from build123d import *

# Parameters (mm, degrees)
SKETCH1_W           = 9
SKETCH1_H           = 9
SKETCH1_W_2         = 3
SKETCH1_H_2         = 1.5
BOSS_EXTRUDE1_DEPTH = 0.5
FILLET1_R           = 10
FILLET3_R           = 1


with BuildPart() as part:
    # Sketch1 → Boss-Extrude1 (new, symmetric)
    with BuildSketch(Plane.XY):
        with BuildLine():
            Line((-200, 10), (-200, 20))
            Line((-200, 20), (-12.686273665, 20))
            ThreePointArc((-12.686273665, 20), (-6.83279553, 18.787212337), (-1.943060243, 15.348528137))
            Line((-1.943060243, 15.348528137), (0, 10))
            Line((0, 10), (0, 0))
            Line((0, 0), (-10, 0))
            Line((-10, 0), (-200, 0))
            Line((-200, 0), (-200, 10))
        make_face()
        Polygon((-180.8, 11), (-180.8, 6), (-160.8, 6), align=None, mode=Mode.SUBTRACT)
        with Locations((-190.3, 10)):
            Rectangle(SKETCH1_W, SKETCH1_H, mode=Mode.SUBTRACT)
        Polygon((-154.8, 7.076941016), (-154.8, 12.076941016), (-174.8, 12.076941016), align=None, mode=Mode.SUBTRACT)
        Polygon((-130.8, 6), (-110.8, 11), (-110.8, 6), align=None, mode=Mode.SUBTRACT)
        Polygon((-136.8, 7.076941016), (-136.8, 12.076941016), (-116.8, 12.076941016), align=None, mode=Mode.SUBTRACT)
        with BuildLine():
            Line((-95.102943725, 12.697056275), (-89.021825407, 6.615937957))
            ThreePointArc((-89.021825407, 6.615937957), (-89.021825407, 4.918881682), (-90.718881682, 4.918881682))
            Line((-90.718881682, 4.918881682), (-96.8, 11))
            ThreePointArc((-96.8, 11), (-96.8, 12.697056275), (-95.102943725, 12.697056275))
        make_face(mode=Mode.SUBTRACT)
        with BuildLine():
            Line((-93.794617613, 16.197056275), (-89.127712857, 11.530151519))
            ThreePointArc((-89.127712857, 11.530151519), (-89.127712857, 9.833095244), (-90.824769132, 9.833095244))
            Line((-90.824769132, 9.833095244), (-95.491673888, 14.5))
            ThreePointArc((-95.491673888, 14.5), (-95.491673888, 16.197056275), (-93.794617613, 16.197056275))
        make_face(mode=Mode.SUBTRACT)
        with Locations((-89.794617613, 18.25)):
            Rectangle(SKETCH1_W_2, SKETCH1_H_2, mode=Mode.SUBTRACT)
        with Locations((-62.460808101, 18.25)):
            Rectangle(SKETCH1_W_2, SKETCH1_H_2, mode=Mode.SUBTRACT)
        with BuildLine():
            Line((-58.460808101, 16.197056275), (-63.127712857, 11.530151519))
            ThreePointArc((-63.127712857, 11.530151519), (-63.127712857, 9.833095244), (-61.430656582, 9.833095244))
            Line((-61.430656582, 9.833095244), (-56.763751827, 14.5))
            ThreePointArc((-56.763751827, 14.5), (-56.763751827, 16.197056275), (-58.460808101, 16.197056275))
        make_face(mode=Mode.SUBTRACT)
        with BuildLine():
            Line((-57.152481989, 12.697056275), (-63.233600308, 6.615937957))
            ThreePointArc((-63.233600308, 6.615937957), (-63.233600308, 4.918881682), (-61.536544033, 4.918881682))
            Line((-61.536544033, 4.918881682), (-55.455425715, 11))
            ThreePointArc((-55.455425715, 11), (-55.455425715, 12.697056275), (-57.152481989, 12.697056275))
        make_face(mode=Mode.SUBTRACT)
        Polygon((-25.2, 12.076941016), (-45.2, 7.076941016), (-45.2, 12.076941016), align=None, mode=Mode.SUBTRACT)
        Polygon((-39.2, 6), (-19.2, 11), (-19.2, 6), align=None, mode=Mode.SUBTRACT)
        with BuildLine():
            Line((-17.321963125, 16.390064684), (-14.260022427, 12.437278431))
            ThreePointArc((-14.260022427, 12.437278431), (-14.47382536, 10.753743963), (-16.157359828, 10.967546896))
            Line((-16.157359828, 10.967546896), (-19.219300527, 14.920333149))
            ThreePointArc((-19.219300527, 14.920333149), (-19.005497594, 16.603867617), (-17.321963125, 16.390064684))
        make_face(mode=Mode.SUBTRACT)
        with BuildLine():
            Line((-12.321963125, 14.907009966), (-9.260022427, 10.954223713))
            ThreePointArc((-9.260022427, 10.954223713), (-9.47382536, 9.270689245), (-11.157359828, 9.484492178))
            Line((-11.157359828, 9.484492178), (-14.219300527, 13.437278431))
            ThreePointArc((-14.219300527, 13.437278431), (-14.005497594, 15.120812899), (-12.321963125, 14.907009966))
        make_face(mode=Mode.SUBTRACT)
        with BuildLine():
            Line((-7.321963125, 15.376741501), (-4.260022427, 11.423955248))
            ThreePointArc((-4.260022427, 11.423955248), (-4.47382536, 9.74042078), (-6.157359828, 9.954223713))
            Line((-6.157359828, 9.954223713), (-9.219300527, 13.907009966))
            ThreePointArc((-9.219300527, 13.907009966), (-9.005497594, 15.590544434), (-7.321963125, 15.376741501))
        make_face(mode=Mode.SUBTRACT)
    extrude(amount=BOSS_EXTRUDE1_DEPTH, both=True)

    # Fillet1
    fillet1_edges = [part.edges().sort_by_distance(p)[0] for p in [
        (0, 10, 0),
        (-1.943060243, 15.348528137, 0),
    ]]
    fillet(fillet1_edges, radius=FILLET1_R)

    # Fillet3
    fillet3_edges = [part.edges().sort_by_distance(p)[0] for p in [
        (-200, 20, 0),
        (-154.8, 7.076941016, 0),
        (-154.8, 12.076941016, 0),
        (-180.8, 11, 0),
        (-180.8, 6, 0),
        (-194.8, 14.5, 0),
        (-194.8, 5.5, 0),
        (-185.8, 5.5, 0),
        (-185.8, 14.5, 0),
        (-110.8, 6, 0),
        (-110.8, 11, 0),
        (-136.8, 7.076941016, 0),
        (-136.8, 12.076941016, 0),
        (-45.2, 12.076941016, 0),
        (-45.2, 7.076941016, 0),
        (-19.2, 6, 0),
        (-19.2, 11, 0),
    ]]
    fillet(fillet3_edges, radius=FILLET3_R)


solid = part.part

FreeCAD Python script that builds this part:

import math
import FreeCAD as App
import Part
import Sketcher

V = App.Vector


def edges_at(feature, points):
    """Names of the edges that pass closest to the given points."""
    edges = feature.Shape.Edges
    near = lambda p: min(range(len(edges)), key=lambda i: edges[i].distToShape(Part.Vertex(*p))[0])
    return sorted({f"Edge{near(p) + 1}" for p in points})


def add_polygon(sketch, points):
    """Adds a closed chain of lines whose ends are joined by coincident constraints."""
    first, n = sketch.GeometryCount, len(points)
    for a, b in zip(points, points[1:] + points[:1]):
        sketch.addGeometry(Part.LineSegment(App.Vector(*a, 0), App.Vector(*b, 0)), False)
    for i in range(n):
        sketch.addConstraint(Sketcher.Constraint("Coincident", first + i, 2, first + (i + 1) % n, 1))

doc = App.newDocument("Part")
params = doc.addObject("Spreadsheet::Sheet", "Params")
for row, (alias, value) in enumerate([
    ("sketch1_radius", "1.2 mm"),
    ("sketch1_width", "200 mm"),
    ("sketch1_width2", "20 mm"),
    ("sketch1_width3", "9 mm"),
    ("sketch1_width4", "3 mm"),
    ("pad1_length", "1 mm"),
    ("fillet_radius", "10 mm"),
    ("fillet2_radius", "1 mm"),
], start=1):
    params.set(f"A{row}", alias)
    params.set(f"B{row}", "=" + value)
    params.setAlias(f"B{row}", alias)

body = doc.addObject("PartDesign::Body", "Body")

sketch1 = body.newObject("Sketcher::SketchObject", "Sketch")
sketch1.AttachmentSupport = (doc.getObject("XY_Plane"), [""])
sketch1.MapMode = "FlatFace"
sketch1.addGeometry(Part.LineSegment(V(-12.686274, 20, 0), V(-200, 20, 0)), False)
sketch1.addGeometry(Part.LineSegment(V(-200, 20, 0), V(-200, 0, 0)), False)
sketch1.addGeometry(Part.LineSegment(V(-200, 0, 0), V(0, 0, 0)), False)
sketch1.addGeometry(Part.LineSegment(V(0, 0, 0), V(0, 10, 0)), False)
sketch1.addGeometry(Part.LineSegment(V(0, 10, 0), V(-1.94306, 15.348528, 0)), False)
sketch1.addGeometry(Part.ArcOfCircle(Part.Circle(V(-12.686274, 5.2678, 0), V(0, 0, 1), 14.7322), math.radians(43.177827), math.radians(90)), False)
add_polygon(sketch1, [(-39.2, 6), (-19.2, 11), (-19.2, 6)])
add_polygon(sketch1, [(-25.2, 12.076941), (-45.2, 7.076941), (-45.2, 12.076941)])
sketch1.addGeometry(Part.ArcOfCircle(Part.Circle(V(-56.303954, 11.848528, 0), V(0, 0, 1), 1.2), math.radians(-45), math.radians(135)), False)
sketch1.addGeometry(Part.LineSegment(V(-55.455426, 11, 0), V(-61.536544, 4.918882, 0)), False)
sketch1.addGeometry(Part.ArcOfCircle(Part.Circle(V(-62.385072, 5.76741, 0), V(0, 0, 1), 1.2), math.radians(135), math.radians(315)), False)
sketch1.addGeometry(Part.LineSegment(V(-63.2336, 6.615938, 0), V(-57.152482, 12.697056, 0)), False)
sketch1.addGeometry(Part.LineSegment(V(-95.102944, 12.697056, 0), V(-89.021825, 6.615938, 0)), False)
sketch1.addGeometry(Part.ArcOfCircle(Part.Circle(V(-89.870354, 5.76741, 0), V(0, 0, 1), 1.2), math.radians(-135), math.radians(45)), False)
sketch1.addGeometry(Part.LineSegment(V(-90.718882, 4.918882, 0), V(-96.8, 11, 0)), False)
sketch1.addGeometry(Part.ArcOfCircle(Part.Circle(V(-95.951472, 11.848528, 0), V(0, 0, 1), 1.2), math.radians(45), math.radians(225)), False)
add_polygon(sketch1, [(-130.8, 6), (-110.8, 11), (-110.8, 6)])
add_polygon(sketch1, [(-136.8, 7.076941), (-136.8, 12.076941), (-116.8, 12.076941)])
add_polygon(sketch1, [(-180.8, 11), (-160.8, 6), (-180.8, 6)])
add_polygon(sketch1, [(-154.8, 7.076941), (-174.8, 12.076941), (-154.8, 12.076941)])
add_polygon(sketch1, [(-194.8, 5.5), (-194.8, 14.5), (-185.8, 14.5), (-185.8, 5.5)])
sketch1.addGeometry(Part.LineSegment(V(-12.321963, 14.90701, 0), V(-9.260022, 10.954224, 0)), False)
sketch1.addGeometry(Part.ArcOfCircle(Part.Circle(V(-10.208691, 10.219358, 0), V(0, 0, 1), 1.2), math.radians(-142.237618), math.radians(37.762382)), False)
sketch1.addGeometry(Part.LineSegment(V(-11.15736, 9.484492, 0), V(-14.219301, 13.437278, 0)), False)
sketch1.addGeometry(Part.ArcOfCircle(Part.Circle(V(-13.270632, 14.172144, 0), V(0, 0, 1), 1.2), math.radians(37.762382), math.radians(217.762382)), False)
sketch1.addGeometry(Part.LineSegment(V(-7.321963, 15.376742, 0), V(-4.260022, 11.423955, 0)), False)
sketch1.addGeometry(Part.ArcOfCircle(Part.Circle(V(-5.208691, 10.689089, 0), V(0, 0, 1), 1.2), math.radians(-142.237618), math.radians(37.762382)), False)
sketch1.addGeometry(Part.LineSegment(V(-6.15736, 9.954224, 0), V(-9.219301, 13.90701, 0)), False)
sketch1.addGeometry(Part.ArcOfCircle(Part.Circle(V(-8.270632, 14.641876, 0), V(0, 0, 1), 1.2), math.radians(37.762382), math.radians(217.762382)), False)
sketch1.addGeometry(Part.LineSegment(V(-17.321963, 16.390065, 0), V(-14.260022, 12.437278, 0)), False)
sketch1.addGeometry(Part.ArcOfCircle(Part.Circle(V(-15.208691, 11.702413, 0), V(0, 0, 1), 1.2), math.radians(-142.237618), math.radians(37.762382)), False)
sketch1.addGeometry(Part.LineSegment(V(-16.15736, 10.967547, 0), V(-19.219301, 14.920333, 0)), False)
sketch1.addGeometry(Part.ArcOfCircle(Part.Circle(V(-18.270632, 15.655199, 0), V(0, 0, 1), 1.2), math.radians(37.762382), math.radians(217.762382)), False)
sketch1.addGeometry(Part.ArcOfCircle(Part.Circle(V(-57.61228, 15.348528, 0), V(0, 0, 1), 1.2), math.radians(-45), math.radians(135)), False)
sketch1.addGeometry(Part.LineSegment(V(-56.763752, 14.5, 0), V(-61.430657, 9.833095, 0)), False)
sketch1.addGeometry(Part.ArcOfCircle(Part.Circle(V(-62.279185, 10.681623, 0), V(0, 0, 1), 1.2), math.radians(135), math.radians(315)), False)
sketch1.addGeometry(Part.LineSegment(V(-63.127713, 11.530152, 0), V(-58.460808, 16.197056, 0)), False)
sketch1.addGeometry(Part.LineSegment(V(-93.794618, 16.197056, 0), V(-89.127713, 11.530152, 0)), False)
sketch1.addGeometry(Part.ArcOfCircle(Part.Circle(V(-89.976241, 10.681623, 0), V(0, 0, 1), 1.2), math.radians(-135), math.radians(45)), False)
sketch1.addGeometry(Part.LineSegment(V(-90.824769, 9.833095, 0), V(-95.491674, 14.5, 0)), False)
sketch1.addGeometry(Part.ArcOfCircle(Part.Circle(V(-94.643146, 15.348528, 0), V(0, 0, 1), 1.2), math.radians(45), math.radians(225)), False)
add_polygon(sketch1, [(-63.960808, 17.5), (-63.960808, 19), (-60.960808, 19), (-60.960808, 17.5)])
add_polygon(sketch1, [(-91.294618, 17.5), (-91.294618, 19), (-88.294618, 19), (-88.294618, 17.5)])
sketch1.addConstraint(Sketcher.Constraint("Coincident", 0, 2, 1, 1))
sketch1.addConstraint(Sketcher.Constraint("Coincident", 1, 2, 2, 1))
sketch1.addConstraint(Sketcher.Constraint("Coincident", 2, 2, 3, 1))
sketch1.addConstraint(Sketcher.Constraint("Coincident", 3, 2, 4, 1))
sketch1.addConstraint(Sketcher.Constraint("Coincident", 4, 2, 5, 1))
sketch1.addConstraint(Sketcher.Constraint("Tangent", 5, 2, 0, 1))
sketch1.addConstraint(Sketcher.Constraint("Tangent", 12, 1, 13, 1))
sketch1.addConstraint(Sketcher.Constraint("Tangent", 13, 2, 14, 2))
sketch1.addConstraint(Sketcher.Constraint("Tangent", 14, 1, 15, 1))
sketch1.addConstraint(Sketcher.Constraint("Tangent", 15, 2, 12, 2))
sketch1.addConstraint(Sketcher.Constraint("Tangent", 16, 2, 17, 2))
sketch1.addConstraint(Sketcher.Constraint("Tangent", 17, 1, 18, 1))
sketch1.addConstraint(Sketcher.Constraint("Tangent", 18, 2, 19, 2))
sketch1.addConstraint(Sketcher.Constraint("Tangent", 19, 1, 16, 1))
sketch1.addConstraint(Sketcher.Constraint("Tangent", 36, 2, 37, 2))
sketch1.addConstraint(Sketcher.Constraint("Tangent", 37, 1, 38, 1))
sketch1.addConstraint(Sketcher.Constraint("Tangent", 38, 2, 39, 2))
sketch1.addConstraint(Sketcher.Constraint("Tangent", 39, 1, 36, 1))
sketch1.addConstraint(Sketcher.Constraint("Tangent", 40, 2, 41, 2))
sketch1.addConstraint(Sketcher.Constraint("Tangent", 41, 1, 42, 1))
sketch1.addConstraint(Sketcher.Constraint("Tangent", 42, 2, 43, 2))
sketch1.addConstraint(Sketcher.Constraint("Tangent", 43, 1, 40, 1))
sketch1.addConstraint(Sketcher.Constraint("Tangent", 44, 2, 45, 2))
sketch1.addConstraint(Sketcher.Constraint("Tangent", 45, 1, 46, 1))
sketch1.addConstraint(Sketcher.Constraint("Tangent", 46, 2, 47, 2))
sketch1.addConstraint(Sketcher.Constraint("Tangent", 47, 1, 44, 1))
sketch1.addConstraint(Sketcher.Constraint("Tangent", 48, 1, 49, 1))
sketch1.addConstraint(Sketcher.Constraint("Tangent", 49, 2, 50, 2))
sketch1.addConstraint(Sketcher.Constraint("Tangent", 50, 1, 51, 1))
sketch1.addConstraint(Sketcher.Constraint("Tangent", 51, 2, 48, 2))
sketch1.addConstraint(Sketcher.Constraint("Tangent", 52, 2, 53, 2))
sketch1.addConstraint(Sketcher.Constraint("Tangent", 53, 1, 54, 1))
sketch1.addConstraint(Sketcher.Constraint("Tangent", 54, 2, 55, 2))
sketch1.addConstraint(Sketcher.Constraint("Tangent", 55, 1, 52, 1))
sketch1.addConstraint(Sketcher.Constraint("Horizontal", 0))
sketch1.addConstraint(Sketcher.Constraint("Vertical", 1))
sketch1.addConstraint(Sketcher.Constraint("Horizontal", 2))
sketch1.addConstraint(Sketcher.Constraint("Vertical", 3))
sketch1.addConstraint(Sketcher.Constraint("Vertical", 7))
sketch1.addConstraint(Sketcher.Constraint("Horizontal", 8))
sketch1.addConstraint(Sketcher.Constraint("Vertical", 10))
sketch1.addConstraint(Sketcher.Constraint("Horizontal", 11))
sketch1.addConstraint(Sketcher.Constraint("Vertical", 21))
sketch1.addConstraint(Sketcher.Constraint("Horizontal", 22))
sketch1.addConstraint(Sketcher.Constraint("Vertical", 23))
sketch1.addConstraint(Sketcher.Constraint("Horizontal", 24))
sketch1.addConstraint(Sketcher.Constraint("Horizontal", 27))
sketch1.addConstraint(Sketcher.Constraint("Vertical", 28))
sketch1.addConstraint(Sketcher.Constraint("Horizontal", 30))
sketch1.addConstraint(Sketcher.Constraint("Vertical", 31))
sketch1.addConstraint(Sketcher.Constraint("Vertical", 32))
sketch1.addConstraint(Sketcher.Constraint("Horizontal", 33))
sketch1.addConstraint(Sketcher.Constraint("Vertical", 34))
sketch1.addConstraint(Sketcher.Constraint("Horizontal", 35))
sketch1.addConstraint(Sketcher.Constraint("Vertical", 56))
sketch1.addConstraint(Sketcher.Constraint("Horizontal", 57))
sketch1.addConstraint(Sketcher.Constraint("Vertical", 58))
sketch1.addConstraint(Sketcher.Constraint("Horizontal", 59))
sketch1.addConstraint(Sketcher.Constraint("Vertical", 60))
sketch1.addConstraint(Sketcher.Constraint("Horizontal", 61))
sketch1.addConstraint(Sketcher.Constraint("Vertical", 62))
sketch1.addConstraint(Sketcher.Constraint("Horizontal", 63))
sketch1.addConstraint(Sketcher.Constraint("Coincident", 2, 2, -1, 1))
sketch1.addConstraint(Sketcher.Constraint("Equal", 12, 14))
sketch1.addConstraint(Sketcher.Constraint("Equal", 14, 17))
sketch1.addConstraint(Sketcher.Constraint("Equal", 17, 19))
sketch1.addConstraint(Sketcher.Constraint("Equal", 19, 37))
sketch1.addConstraint(Sketcher.Constraint("Equal", 37, 39))
sketch1.addConstraint(Sketcher.Constraint("Equal", 39, 41))
sketch1.addConstraint(Sketcher.Constraint("Equal", 41, 43))
sketch1.addConstraint(Sketcher.Constraint("Equal", 43, 45))
sketch1.addConstraint(Sketcher.Constraint("Equal", 45, 47))
sketch1.addConstraint(Sketcher.Constraint("Equal", 47, 48))
sketch1.addConstraint(Sketcher.Constraint("Equal", 48, 50))
sketch1.addConstraint(Sketcher.Constraint("Equal", 50, 53))
sketch1.addConstraint(Sketcher.Constraint("Equal", 53, 55))
sketch1.addConstraint(Sketcher.Constraint("Parallel", 6, 9))
sketch1.addConstraint(Sketcher.Constraint("Perpendicular", 15, 16))
sketch1.addConstraint(Sketcher.Constraint("Parallel", 9, 20))
sketch1.addConstraint(Sketcher.Constraint("Parallel", 20, 25))
sketch1.addConstraint(Sketcher.Constraint("Parallel", 26, 29))
sketch1.addConstraint(Sketcher.Constraint("Parallel", 38, 40))
sketch1.addConstraint(Sketcher.Constraint("Parallel", 42, 44))
sketch1.addConstraint(Sketcher.Constraint("Perpendicular", 18, 49))
sketch1.addConstraint(Sketcher.Constraint("Perpendicular", 51, 52))
sketch1.addConstraint(Sketcher.Constraint("Horizontal", 14, 3, 17, 3))
sketch1.addConstraint(Sketcher.Constraint("Horizontal", 12, 3, 19, 3))
sketch1.addConstraint(Sketcher.Constraint("Horizontal", 50, 3, 53, 3))
sketch1.addConstraint(Sketcher.Constraint("Horizontal", 48, 3, 55, 3))
sketch1.addConstraint(Sketcher.Constraint("Horizontal", 55, 3, 4, 2))
sketch1.addConstraint(Sketcher.Constraint("Horizontal", 6, 2, 12, 1))
sketch1.addConstraint(Sketcher.Constraint("Horizontal", 14, 1, 16, 2))
sketch1.addConstraint(Sketcher.Constraint("Horizontal", 18, 2, 20, 2))
sketch1.addConstraint(Sketcher.Constraint("Horizontal", 8, 2, 21, 2))
sketch1.addConstraint(Sketcher.Constraint("Horizontal", 11, 2, 23, 2))
sketch1.addConstraint(Sketcher.Constraint("Horizontal", 9, 2, 25, 2))
sketch1.addConstraint(Sketcher.Constraint("Horizontal", 22, 2, 26, 2))
sketch1.addConstraint(Sketcher.Constraint("Horizontal", 20, 2, 28, 2))
sketch1.addConstraint(Sketcher.Constraint("Horizontal", 24, 2, 29, 2))
sketch1.addConstraint(Sketcher.Constraint("Horizontal", 25, 2, 31, 2))
sketch1.addConstraint(Sketcher.Constraint("Horizontal", 33, 2, 48, 1))
sketch1.addConstraint(Sketcher.Constraint("Horizontal", 57, 2, 60, 2))
sketch1.addConstraint(Sketcher.Constraint("Horizontal", 59, 2, 62, 2))
sketch1.addConstraint(Sketcher.Constraint("Equal", 8, 11))
sketch1.addConstraint(Sketcher.Constraint("Equal", 24, 27))
sketch1.addConstraint(Sketcher.Constraint("Equal", 59, 61))
sketch1.addConstraint(Sketcher.Constraint("Equal", 30, 1))
sketch1.addConstraint(Sketcher.Constraint("Equal", 35, 32))
sketch1.addConstraint(Sketcher.Constraint("Equal", 38, 40))
sketch1.addConstraint(Sketcher.Constraint("Equal", 42, 44))
sketch1.addConstraint(Sketcher.Constraint("Radius", 12, 1.2))
sketch1.addConstraint(Sketcher.Constraint("DistanceX", 2, 1, 2, 2, 200.0))
sketch1.addConstraint(Sketcher.Constraint("DistanceX", 8, 2, 8, 1, 20.0))
sketch1.addConstraint(Sketcher.Constraint("DistanceX", 33, 1, 33, 2, 9.0))
sketch1.addConstraint(Sketcher.Constraint("DistanceX", 57, 1, 57, 2, 3.0))
sketch1.addConstraint(Sketcher.Constraint("DistanceY", 3, 1, 3, 2, 10.0))
sketch1.addConstraint(Sketcher.Constraint("DistanceY", 7, 2, 7, 1, 5.0))
sketch1.addConstraint(Sketcher.Constraint("Distance", 36, 5.0))
sketch1.addConstraint(Sketcher.Constraint("DistanceY", 56, 1, 56, 2, 1.5))
sketch1.addConstraint(Sketcher.Constraint("DistanceY", -1, 1, 6, 2, 11.0))
sketch1.addConstraint(Sketcher.Constraint("DistanceY", -1, 1, 56, 2, 19.0))
sketch1.addConstraint(Sketcher.Constraint("Distance", 13, 8.6))
sketch1.addConstraint(Sketcher.Constraint("Distance", 49, 6.6))
sketch1.addConstraint(Sketcher.Constraint("DistanceX", 6, 2, -1, 1, 19.2))
sketch1.addConstraint(Sketcher.Constraint("DistanceX", 9, 2, -1, 1, 45.2))
sketch1.addConstraint(Sketcher.Constraint("DistanceX", 18, 2, -1, 1, 96.8))
sketch1.addConstraint(Sketcher.Constraint("DistanceX", 20, 2, -1, 1, 110.8))
sketch1.addConstraint(Sketcher.Constraint("DistanceX", 23, 2, -1, 1, 136.8))
sketch1.addConstraint(Sketcher.Constraint("DistanceX", 26, 2, -1, 1, 160.8))
sketch1.addConstraint(Sketcher.Constraint("DistanceX", 29, 2, -1, 1, 174.8))
sketch1.addConstraint(Sketcher.Constraint("DistanceX", 32, 2, -1, 1, 194.8))
sketch1.addConstraint(Sketcher.Constraint("DistanceY", -1, 1, 32, 2, 14.5))
sketch1.addConstraint(Sketcher.Constraint("Radius", 5, 14.7322))
sketch1.addConstraint(Sketcher.Constraint("DistanceY", -1, 1, 47, 3, 15.655199))
sketch1.addConstraint(Sketcher.Constraint("DistanceX", 14, 1, -1, 1, 63.2336))
sketch1.addConstraint(Sketcher.Constraint("DistanceX", 38, 2, -1, 1, 14.219301))
sketch1.addConstraint(Sketcher.Constraint("DistanceX", 42, 2, -1, 1, 9.219301))
sketch1.addConstraint(Sketcher.Constraint("DistanceX", 46, 2, -1, 1, 19.219301))
sketch1.addConstraint(Sketcher.Constraint("Distance", 4, 5.690539))
sketch1.addConstraint(Sketcher.Constraint("DistanceX", 37, 3, -1, 1, 10.208691))
sketch1.addConstraint(Sketcher.Constraint("DistanceY", -1, 1, 41, 3, 10.689089))
sketch1.addConstraint(Sketcher.Constraint("DistanceX", 48, 3, -1, 1, 57.61228))
sketch1.addConstraint(Sketcher.Constraint("DistanceX", 53, 3, -1, 1, 89.976241))
sketch1.addConstraint(Sketcher.Constraint("DistanceY", -1, 1, 9, 2, 7.076941))
sketch1.addConstraint(Sketcher.Constraint("DistanceY", -1, 1, 38, 2, 13.437278))
sketch1.addConstraint(Sketcher.Constraint("DistanceX", 56, 2, -1, 1, 63.960808))
sketch1.addConstraint(Sketcher.Constraint("DistanceX", 60, 2, -1, 1, 91.294618))
sketch1.setExpression("Constraints[140]", "Params.sketch1_radius")
sketch1.setExpression("Constraints[141]", "Params.sketch1_width")
sketch1.setExpression("Constraints[142]", "Params.sketch1_width2")
sketch1.setExpression("Constraints[143]", "Params.sketch1_width3")
sketch1.setExpression("Constraints[144]", "Params.sketch1_width4")
pad1 = body.newObject("PartDesign::Pad", "Pad")
pad1.Profile = sketch1
pad1.setExpression("Length", "Params.pad1_length")
pad1.Midplane = True
doc.recompute()

fillet = body.newObject("PartDesign::Fillet", "Fillet")
fillet.Base = (pad1, edges_at(pad1, [(0, 10, 0), (-1.943, 15.349, 0)]))
fillet.setExpression("Radius", "Params.fillet_radius")
doc.recompute()

fillet2 = body.newObject("PartDesign::Fillet", "Fillet001")
fillet2.Base = (fillet, edges_at(fillet, [
    (-200, 20, 0),
    (-154.8, 7.077, 0),
    (-154.8, 12.077, 0),
    (-180.8, 11, 0),
    (-180.8, 6, 0),
    (-194.8, 14.5, 0),
    (-194.8, 5.5, 0),
    (-185.8, 5.5, 0),
    (-185.8, 14.5, 0),
    (-110.8, 6, 0),
    (-110.8, 11, 0),
    (-136.8, 7.077, 0),
    (-136.8, 12.077, 0),
    (-45.2, 12.077, 0),
    (-45.2, 7.077, 0),
    (-19.2, 6, 0),
    (-19.2, 11, 0),
]))
fillet2.setExpression("Radius", "Params.fillet2_radius")

doc.recompute()
